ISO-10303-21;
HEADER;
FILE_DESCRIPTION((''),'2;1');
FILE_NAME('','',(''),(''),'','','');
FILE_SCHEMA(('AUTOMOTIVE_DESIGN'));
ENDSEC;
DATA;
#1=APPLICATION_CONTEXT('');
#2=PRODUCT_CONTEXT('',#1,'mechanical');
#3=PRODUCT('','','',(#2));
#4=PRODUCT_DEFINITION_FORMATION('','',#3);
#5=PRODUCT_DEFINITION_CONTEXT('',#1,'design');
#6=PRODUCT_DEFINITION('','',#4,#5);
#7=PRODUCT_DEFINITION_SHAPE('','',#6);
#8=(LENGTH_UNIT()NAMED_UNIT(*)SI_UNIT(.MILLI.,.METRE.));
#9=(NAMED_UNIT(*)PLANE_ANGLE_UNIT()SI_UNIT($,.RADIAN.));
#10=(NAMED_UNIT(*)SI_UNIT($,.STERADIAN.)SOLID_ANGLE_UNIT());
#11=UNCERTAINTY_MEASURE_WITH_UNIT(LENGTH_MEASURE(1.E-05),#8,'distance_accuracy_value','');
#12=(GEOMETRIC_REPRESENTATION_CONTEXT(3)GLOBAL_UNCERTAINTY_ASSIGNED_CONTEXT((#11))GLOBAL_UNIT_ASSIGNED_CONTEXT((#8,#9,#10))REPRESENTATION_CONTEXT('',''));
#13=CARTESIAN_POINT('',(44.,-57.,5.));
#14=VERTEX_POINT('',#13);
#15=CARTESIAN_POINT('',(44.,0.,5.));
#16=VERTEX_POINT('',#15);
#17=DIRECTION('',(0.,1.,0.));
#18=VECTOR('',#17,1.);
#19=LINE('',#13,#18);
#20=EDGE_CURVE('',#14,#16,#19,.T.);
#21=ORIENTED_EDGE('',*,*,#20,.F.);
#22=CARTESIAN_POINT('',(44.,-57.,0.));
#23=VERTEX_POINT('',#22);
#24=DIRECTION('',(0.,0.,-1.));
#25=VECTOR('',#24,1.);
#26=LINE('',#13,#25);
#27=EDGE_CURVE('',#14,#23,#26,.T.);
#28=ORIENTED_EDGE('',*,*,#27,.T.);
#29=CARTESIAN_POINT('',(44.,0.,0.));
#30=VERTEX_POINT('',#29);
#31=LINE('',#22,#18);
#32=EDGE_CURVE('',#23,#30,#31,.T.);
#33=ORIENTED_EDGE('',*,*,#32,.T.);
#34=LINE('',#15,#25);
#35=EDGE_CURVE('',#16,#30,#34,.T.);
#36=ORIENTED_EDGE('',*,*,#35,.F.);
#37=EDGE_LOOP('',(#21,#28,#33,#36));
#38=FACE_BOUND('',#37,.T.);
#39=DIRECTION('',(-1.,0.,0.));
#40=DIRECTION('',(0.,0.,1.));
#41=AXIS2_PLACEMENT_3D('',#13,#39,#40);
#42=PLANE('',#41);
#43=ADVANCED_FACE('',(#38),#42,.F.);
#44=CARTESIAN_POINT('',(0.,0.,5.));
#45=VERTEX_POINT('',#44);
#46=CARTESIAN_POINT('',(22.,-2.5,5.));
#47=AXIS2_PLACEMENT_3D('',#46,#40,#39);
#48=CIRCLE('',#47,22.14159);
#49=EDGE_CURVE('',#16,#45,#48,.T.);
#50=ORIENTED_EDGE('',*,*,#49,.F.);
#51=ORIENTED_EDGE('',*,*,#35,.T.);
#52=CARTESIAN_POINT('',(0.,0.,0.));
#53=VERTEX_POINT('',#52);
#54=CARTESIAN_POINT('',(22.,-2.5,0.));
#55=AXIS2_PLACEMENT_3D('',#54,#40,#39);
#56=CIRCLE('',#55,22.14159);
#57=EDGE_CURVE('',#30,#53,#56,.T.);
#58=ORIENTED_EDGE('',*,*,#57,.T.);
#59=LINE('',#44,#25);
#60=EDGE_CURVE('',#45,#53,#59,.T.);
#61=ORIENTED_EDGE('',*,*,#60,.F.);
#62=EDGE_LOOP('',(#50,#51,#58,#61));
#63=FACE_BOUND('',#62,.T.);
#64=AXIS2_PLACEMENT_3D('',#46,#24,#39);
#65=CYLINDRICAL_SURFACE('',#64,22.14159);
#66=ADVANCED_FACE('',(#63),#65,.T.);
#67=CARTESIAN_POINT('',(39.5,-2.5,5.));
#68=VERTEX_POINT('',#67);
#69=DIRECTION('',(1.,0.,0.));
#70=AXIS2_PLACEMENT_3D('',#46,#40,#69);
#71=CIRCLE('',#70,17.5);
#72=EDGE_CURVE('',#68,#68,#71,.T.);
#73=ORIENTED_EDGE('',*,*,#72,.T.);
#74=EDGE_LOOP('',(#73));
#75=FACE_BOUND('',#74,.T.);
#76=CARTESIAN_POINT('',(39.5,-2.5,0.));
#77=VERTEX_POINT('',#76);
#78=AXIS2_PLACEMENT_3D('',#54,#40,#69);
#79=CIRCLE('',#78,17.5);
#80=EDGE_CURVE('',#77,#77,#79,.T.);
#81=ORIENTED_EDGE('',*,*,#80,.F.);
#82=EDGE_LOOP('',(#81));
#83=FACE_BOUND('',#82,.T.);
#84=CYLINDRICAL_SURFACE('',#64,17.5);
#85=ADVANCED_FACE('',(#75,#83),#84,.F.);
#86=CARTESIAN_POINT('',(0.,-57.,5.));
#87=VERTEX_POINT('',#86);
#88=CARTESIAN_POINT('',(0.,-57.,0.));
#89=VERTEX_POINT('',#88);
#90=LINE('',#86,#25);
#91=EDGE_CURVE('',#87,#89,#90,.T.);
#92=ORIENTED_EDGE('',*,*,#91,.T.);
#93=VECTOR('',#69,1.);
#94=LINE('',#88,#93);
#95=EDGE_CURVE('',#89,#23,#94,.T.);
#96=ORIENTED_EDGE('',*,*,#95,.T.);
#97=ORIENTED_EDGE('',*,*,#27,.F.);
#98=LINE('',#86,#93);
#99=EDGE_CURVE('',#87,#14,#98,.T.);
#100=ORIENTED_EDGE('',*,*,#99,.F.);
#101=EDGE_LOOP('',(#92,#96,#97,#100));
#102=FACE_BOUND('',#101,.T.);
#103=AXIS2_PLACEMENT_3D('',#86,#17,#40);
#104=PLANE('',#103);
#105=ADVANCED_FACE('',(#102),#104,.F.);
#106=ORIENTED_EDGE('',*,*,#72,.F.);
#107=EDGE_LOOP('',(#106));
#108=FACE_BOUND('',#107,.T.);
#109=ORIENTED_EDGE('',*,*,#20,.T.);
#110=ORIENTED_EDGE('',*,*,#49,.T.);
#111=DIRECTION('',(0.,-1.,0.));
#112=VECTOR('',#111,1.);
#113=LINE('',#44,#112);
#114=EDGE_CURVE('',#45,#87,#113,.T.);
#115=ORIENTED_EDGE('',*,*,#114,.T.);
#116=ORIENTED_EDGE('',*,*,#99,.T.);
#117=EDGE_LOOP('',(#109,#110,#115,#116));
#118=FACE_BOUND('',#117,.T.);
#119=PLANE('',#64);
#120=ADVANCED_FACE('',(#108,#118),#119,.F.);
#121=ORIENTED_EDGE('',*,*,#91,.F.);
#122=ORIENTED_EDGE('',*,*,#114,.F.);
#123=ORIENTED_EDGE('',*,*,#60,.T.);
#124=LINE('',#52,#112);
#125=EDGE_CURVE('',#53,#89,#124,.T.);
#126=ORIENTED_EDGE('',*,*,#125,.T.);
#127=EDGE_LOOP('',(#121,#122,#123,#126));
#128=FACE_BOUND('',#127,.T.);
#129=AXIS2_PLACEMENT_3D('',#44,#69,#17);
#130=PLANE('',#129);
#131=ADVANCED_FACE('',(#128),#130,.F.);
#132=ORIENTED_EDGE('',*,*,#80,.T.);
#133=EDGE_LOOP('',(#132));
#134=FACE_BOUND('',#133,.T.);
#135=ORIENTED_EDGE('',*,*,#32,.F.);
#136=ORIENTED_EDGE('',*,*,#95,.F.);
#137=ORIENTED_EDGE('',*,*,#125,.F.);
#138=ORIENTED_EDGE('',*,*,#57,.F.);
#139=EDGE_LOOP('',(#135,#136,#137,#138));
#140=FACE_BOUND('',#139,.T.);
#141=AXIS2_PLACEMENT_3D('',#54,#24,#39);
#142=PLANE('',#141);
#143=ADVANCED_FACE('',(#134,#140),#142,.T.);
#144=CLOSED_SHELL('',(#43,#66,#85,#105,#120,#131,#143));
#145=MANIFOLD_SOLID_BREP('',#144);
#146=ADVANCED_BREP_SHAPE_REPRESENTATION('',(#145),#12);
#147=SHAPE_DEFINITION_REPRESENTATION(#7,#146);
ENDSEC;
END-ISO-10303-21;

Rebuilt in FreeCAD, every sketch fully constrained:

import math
import FreeCAD as App
import Part
import Sketcher

V = App.Vector
Q = App.Units.Quantity

doc = App.newDocument("Part")
params = doc.addObject("Spreadsheet::Sheet", "Params")
for row, (alias, value) in enumerate([
    ("sketch1_diameter", "35 mm"),
    ("sketch1_width", "44 mm"),
    ("sketch1_height", "57 mm"),
    ("pad1_length", "5 mm"),
], start=1):
    params.set(f"A{row}", alias)
    params.set(f"B{row}", "=" + value)
    params.setAlias(f"B{row}", alias)

body = doc.addObject("PartDesign::Body", "Body")

sketch1 = body.newObject("Sketcher::SketchObject", "Sketch")
sketch1.AttachmentSupport = (doc.getObject("XY_Plane"), [""])
sketch1.MapMode = "FlatFace"
sketch1.addGeometry([
    Part.LineSegment(V(0, 0, 0), V(0, -57, 0)),
    Part.LineSegment(V(0, -57, 0), V(44, -57, 0)),
    Part.LineSegment(V(44, -57, 0), V(44, 0, 0)),
    Part.ArcOfCircle(Part.Circle(V(22, -3, 0), V(0, 0, 1), 22), math.radians(6), math.radians(174)),
    Part.Circle(V(22, -2, 0), V(0, 0, 1), 18),
], False)
sketch1.addConstraint([
    Sketcher.Constraint("Coincident", 0, 2, 1, 1),
    Sketcher.Constraint("Coincident", 1, 2, 2, 1),
    Sketcher.Constraint("Coincident", 2, 2, 3, 1),
    Sketcher.Constraint("Coincident", 3, 2, 0, 1),
    Sketcher.Constraint("Vertical", 0),
    Sketcher.Constraint("Horizontal", 1),
    Sketcher.Constraint("Vertical", 2),
    Sketcher.Constraint("Coincident", 3, 2, -1, 1),
    Sketcher.Constraint("Coincident", 4, 3, 3, 3),
    Sketcher.Constraint("PointOnObject", 2, 2, -1),
    Sketcher.Constraint("Diameter", 4, Q("35 mm")),
    Sketcher.Constraint("DistanceX", 1, 1, 1, 2, Q("44 mm")),
    Sketcher.Constraint("DistanceY", 0, 2, 0, 1, Q("57 mm")),
    Sketcher.Constraint("DistanceY", 3, 3, -1, 1, Q("2.5 mm")),
])
sketch1.setExpression("Constraints[10]", "Params.sketch1_diameter")
sketch1.setExpression("Constraints[11]", "Params.sketch1_width")
sketch1.setExpression("Constraints[12]", "Params.sketch1_height")
pad1 = body.newObject("PartDesign::Pad", "Pad")
pad1.Profile = sketch1
pad1.setExpression("Length", "Params.pad1_length")

doc.recompute()
